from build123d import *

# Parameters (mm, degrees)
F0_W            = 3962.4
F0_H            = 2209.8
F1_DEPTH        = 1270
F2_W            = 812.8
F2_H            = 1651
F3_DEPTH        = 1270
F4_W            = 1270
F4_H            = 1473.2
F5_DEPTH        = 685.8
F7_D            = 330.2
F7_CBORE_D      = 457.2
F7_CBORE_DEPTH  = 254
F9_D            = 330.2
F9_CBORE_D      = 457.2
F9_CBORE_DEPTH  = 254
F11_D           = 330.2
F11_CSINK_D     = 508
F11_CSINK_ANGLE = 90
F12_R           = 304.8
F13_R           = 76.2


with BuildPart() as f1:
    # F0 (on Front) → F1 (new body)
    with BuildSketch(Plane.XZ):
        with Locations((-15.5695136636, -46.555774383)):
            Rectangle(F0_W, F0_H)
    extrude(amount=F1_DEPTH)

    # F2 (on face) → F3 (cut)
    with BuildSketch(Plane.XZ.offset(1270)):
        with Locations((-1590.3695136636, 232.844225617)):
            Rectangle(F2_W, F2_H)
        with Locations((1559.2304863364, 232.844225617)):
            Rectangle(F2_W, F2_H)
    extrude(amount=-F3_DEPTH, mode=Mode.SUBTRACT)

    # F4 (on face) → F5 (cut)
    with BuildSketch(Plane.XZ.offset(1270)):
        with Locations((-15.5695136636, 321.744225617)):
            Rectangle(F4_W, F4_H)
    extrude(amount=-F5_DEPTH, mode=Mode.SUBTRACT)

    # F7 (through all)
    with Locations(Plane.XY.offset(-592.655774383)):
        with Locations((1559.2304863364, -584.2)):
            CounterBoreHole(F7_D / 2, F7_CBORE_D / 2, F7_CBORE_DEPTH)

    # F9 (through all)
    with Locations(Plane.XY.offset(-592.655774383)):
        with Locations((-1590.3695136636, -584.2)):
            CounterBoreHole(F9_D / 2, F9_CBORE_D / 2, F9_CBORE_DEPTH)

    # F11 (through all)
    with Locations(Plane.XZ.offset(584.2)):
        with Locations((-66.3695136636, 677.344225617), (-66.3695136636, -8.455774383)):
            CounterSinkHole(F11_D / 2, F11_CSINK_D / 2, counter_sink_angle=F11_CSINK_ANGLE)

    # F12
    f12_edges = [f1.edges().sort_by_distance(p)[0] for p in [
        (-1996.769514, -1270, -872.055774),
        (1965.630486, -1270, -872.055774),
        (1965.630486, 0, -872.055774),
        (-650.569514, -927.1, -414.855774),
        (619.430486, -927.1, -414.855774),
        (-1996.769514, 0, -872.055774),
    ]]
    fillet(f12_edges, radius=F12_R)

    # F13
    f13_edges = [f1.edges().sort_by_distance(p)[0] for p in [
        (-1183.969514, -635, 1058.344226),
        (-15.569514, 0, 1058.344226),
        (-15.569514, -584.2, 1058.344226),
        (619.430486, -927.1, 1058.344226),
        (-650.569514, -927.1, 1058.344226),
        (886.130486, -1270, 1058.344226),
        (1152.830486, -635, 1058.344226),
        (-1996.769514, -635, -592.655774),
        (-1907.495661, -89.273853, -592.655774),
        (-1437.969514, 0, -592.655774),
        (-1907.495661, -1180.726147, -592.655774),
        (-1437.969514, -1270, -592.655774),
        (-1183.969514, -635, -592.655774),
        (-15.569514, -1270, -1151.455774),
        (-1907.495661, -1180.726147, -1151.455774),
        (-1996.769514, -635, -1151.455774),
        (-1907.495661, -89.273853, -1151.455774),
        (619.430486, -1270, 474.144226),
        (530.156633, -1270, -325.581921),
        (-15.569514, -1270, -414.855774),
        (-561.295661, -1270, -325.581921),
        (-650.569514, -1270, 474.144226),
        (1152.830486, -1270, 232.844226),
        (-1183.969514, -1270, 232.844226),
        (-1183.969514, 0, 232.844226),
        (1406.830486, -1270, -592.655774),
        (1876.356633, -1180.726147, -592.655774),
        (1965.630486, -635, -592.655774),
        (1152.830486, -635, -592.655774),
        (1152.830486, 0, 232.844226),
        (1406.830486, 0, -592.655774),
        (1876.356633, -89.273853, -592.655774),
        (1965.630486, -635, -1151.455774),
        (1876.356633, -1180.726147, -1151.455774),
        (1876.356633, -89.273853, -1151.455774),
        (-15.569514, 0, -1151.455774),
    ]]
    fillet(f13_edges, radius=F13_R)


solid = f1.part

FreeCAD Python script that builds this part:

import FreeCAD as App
import Part
import Sketcher
from FreeCAD import Vector
Q = App.Units.Quantity


def edges_at(feature, points):
    """Names of the edges that pass closest to the given points."""
    edges = feature.Shape.Edges
    near = lambda p: min(range(len(edges)), key=lambda i: edges[i].distToShape(Part.Vertex(*p))[0])
    return sorted({f"Edge{near(p) + 1}" for p in points})


def add_polygon(sketch, points):
    """Adds a closed chain of lines whose ends are joined by coincident constraints."""
    first, n = sketch.GeometryCount, len(points)
    for a, b in zip(points, points[1:] + points[:1]):
        sketch.addGeometry(Part.LineSegment(App.Vector(*a, 0), App.Vector(*b, 0)), False)
    for i in range(n):
        sketch.addConstraint(Sketcher.Constraint("Coincident", first + i, 2, first + (i + 1) % n, 1))

doc = App.newDocument("Part")
body = doc.addObject("PartDesign::Body", "Body")

sketch1 = body.newObject("Sketcher::SketchObject", "Sketch")
sketch1.AttachmentSupport = (doc.getObject("XZ_Plane"), [""])
sketch1.MapMode = "FlatFace"
add_polygon(sketch1, [(-1997, 1058), (-1997, -1151), (1966, -1151), (1966, 1058)])
sketch1.addConstraint(Sketcher.Constraint("Vertical", 0))
sketch1.addConstraint(Sketcher.Constraint("Horizontal", 1))
sketch1.addConstraint(Sketcher.Constraint("Vertical", 2))
sketch1.addConstraint(Sketcher.Constraint("Horizontal", 3))
sketch1.addConstraint(Sketcher.Constraint("DistanceX", 1, 1, 1, 2, Q("156 in")))
sketch1.addConstraint(Sketcher.Constraint("DistanceY", 0, 2, 0, 1, Q("87 in")))
sketch1.addConstraint(Sketcher.Constraint("DistanceX", 0, 2, -1, 1, Q("1996.769514 mm")))
sketch1.addConstraint(Sketcher.Constraint("DistanceY", 0, 2, -1, 1, Q("1151.455774 mm")))
pad1 = body.newObject("PartDesign::Pad", "Pad")
pad1.Profile = sketch1
pad1.Length = Q("50 in")

sketch2 = body.newObject("Sketcher::SketchObject", "Sketch001")
sketch2.AttachmentSupport = (doc.getObject("XZ_Plane"), [""])
sketch2.MapMode = "FlatFace"
sketch2.AttachmentOffset = App.Placement(Vector(0, 0, 50 * 25.4), App.Rotation())
add_polygon(sketch2, [(-1997, 1058), (-1997, -593), (-1184, -593), (-1184, 1058)])
add_polygon(sketch2, [(1153, 1058), (1153, -593), (1966, -593), (1966, 1058)])
sketch2.addConstraint(Sketcher.Constraint("Vertical", 0))
sketch2.addConstraint(Sketcher.Constraint("Horizontal", 1))
sketch2.addConstraint(Sketcher.Constraint("Vertical", 2))
sketch2.addConstraint(Sketcher.Constraint("Horizontal", 3))
sketch2.addConstraint(Sketcher.Constraint("Vertical", 4))
sketch2.addConstraint(Sketcher.Constraint("Horizontal", 5))
sketch2.addConstraint(Sketcher.Constraint("Vertical", 6))
sketch2.addConstraint(Sketcher.Constraint("Horizontal", 7))
sketch2.addConstraint(Sketcher.Constraint("Horizontal", 1, 2, 4, 2))
sketch2.addConstraint(Sketcher.Constraint("Horizontal", 3, 2, 6, 2))
sketch2.addConstraint(Sketcher.Constraint("Equal", 3, 5))
sketch2.addConstraint(Sketcher.Constraint("DistanceX", 1, 1, 1, 2, Q("32 in")))
sketch2.addConstraint(Sketcher.Constraint("DistanceY", 0, 2, 0, 1, Q("65 in")))
sketch2.addConstraint(Sketcher.Constraint("DistanceX", 1, 2, 4, 2, Q("92 in")))
sketch2.addConstraint(Sketcher.Constraint("DistanceX", 0, 2, -1, 1, Q("1996.769514 mm")))
sketch2.addConstraint(Sketcher.Constraint("DistanceY", 0, 2, -1, 1, Q("592.655774 mm")))
pocket1 = body.newObject("PartDesign::Pocket", "Pocket")
pocket1.Profile = sketch2
pocket1.Length = Q("50 in")

sketch3 = body.newObject("Sketcher::SketchObject", "Sketch002")
sketch3.AttachmentSupport = (doc.getObject("XZ_Plane"), [""])
sketch3.MapMode = "FlatFace"
sketch3.AttachmentOffset = App.Placement(Vector(0, 0, 50 * 25.4), App.Rotation())
add_polygon(sketch3, [(-651, 1058), (-651, -415), (619, -415), (619, 1058)])
sketch3.addConstraint(Sketcher.Constraint("Vertical", 0))
sketch3.addConstraint(Sketcher.Constraint("Horizontal", 1))
sketch3.addConstraint(Sketcher.Constraint("Vertical", 2))
sketch3.addConstraint(Sketcher.Constraint("Horizontal", 3))
sketch3.addConstraint(Sketcher.Constraint("DistanceX", 1, 1, 1, 2, Q("50 in")))
sketch3.addConstraint(Sketcher.Constraint("DistanceY", 0, 2, 0, 1, Q("58 in")))
sketch3.addConstraint(Sketcher.Constraint("DistanceX", 0, 2, -1, 1, Q("650.569514 mm")))
sketch3.addConstraint(Sketcher.Constraint("DistanceY", 0, 2, -1, 1, Q("414.855774 mm")))
pocket2 = body.newObject("PartDesign::Pocket", "Pocket001")
pocket2.Profile = sketch3
pocket2.Length = Q("27 in")

sketch4 = body.newObject("Sketcher::SketchObject", "Sketch003")
sketch4.AttachmentSupport = (doc.getObject("XY_Plane"), [""])
sketch4.MapMode = "FlatFace"
sketch4.AttachmentOffset = App.Placement(Vector(0, 0, -592.655774), App.Rotation())
sketch4.addGeometry(Part.Circle(Vector(1559, -584, 0), Vector(0, 0, 1), 165), False)
sketch4.addConstraint(Sketcher.Constraint("Diameter", 0, Q("13 in")))
sketch4.addConstraint(Sketcher.Constraint("DistanceY", 0, 3, -1, 1, Q("23 in")))
sketch4.addConstraint(Sketcher.Constraint("DistanceX", -1, 1, 0, 3, Q("1559.230486 mm")))
doc.recompute()
hole = body.newObject("PartDesign::Hole", "Hole")
hole.Profile = sketch4
hole.ThreadType = "None"
hole.Diameter = Q("13 in")
hole.DepthType = "ThroughAll"
hole.HoleCutType = "Counterbore"
hole.HoleCutDiameter = Q("18 in")
hole.HoleCutDepth = Q("10 in")

sketch5 = body.newObject("Sketcher::SketchObject", "Sketch004")
sketch5.AttachmentSupport = (doc.getObject("XY_Plane"), [""])
sketch5.MapMode = "FlatFace"
sketch5.AttachmentOffset = App.Placement(Vector(0, 0, -592.655774), App.Rotation())
sketch5.addGeometry(Part.Circle(Vector(-1590, -584, 0), Vector(0, 0, 1), 165), False)
sketch5.addConstraint(Sketcher.Constraint("Diameter", 0, Q("13 in")))
sketch5.addConstraint(Sketcher.Constraint("DistanceY", 0, 3, -1, 1, Q("23 in")))
sketch5.addConstraint(Sketcher.Constraint("DistanceX", 0, 3, -1, 1, Q("1590.369514 mm")))
doc.recompute()
hole2 = body.newObject("PartDesign::Hole", "Hole001")
hole2.Profile = sketch5
hole2.ThreadType = "None"
hole2.Diameter = Q("13 in")
hole2.DepthType = "ThroughAll"
hole2.HoleCutType = "Counterbore"
hole2.HoleCutDiameter = Q("18 in")
hole2.HoleCutDepth = Q("10 in")

sketch6 = body.newObject("Sketcher::SketchObject", "Sketch005")
sketch6.AttachmentSupport = (doc.getObject("XZ_Plane"), [""])
sketch6.MapMode = "FlatFace"
sketch6.AttachmentOffset = App.Placement(Vector(0, 0, 23 * 25.4), App.Rotation())
sketch6.addGeometry(Part.Circle(Vector(-66, 677, 0), Vector(0, 0, 1), 165), False)
sketch6.addGeometry(Part.Circle(Vector(-66, -8, 0), Vector(0, 0, 1), 165), False)
sketch6.addConstraint(Sketcher.Constraint("Equal", 0, 1))
sketch6.addConstraint(Sketcher.Constraint("Vertical", 0, 3, 1, 3))
sketch6.addConstraint(Sketcher.Constraint("Diameter", 0, Q("13 in")))
sketch6.addConstraint(Sketcher.Constraint("DistanceY", 1, 3, 0, 3, Q("27 in")))
sketch6.addConstraint(Sketcher.Constraint("DistanceX", 0, 3, -1, 1, Q("66.369514 mm")))
sketch6.addConstraint(Sketcher.Constraint("DistanceY", -1, 1, 0, 3, Q("677.344226 mm")))
doc.recompute()
hole3 = body.newObject("PartDesign::Hole", "Hole002")
hole3.Profile = sketch6
hole3.ThreadType = "None"
hole3.Diameter = Q("13 in")
hole3.DepthType = "ThroughAll"
hole3.HoleCutType = "Countersink"
hole3.HoleCutDiameter = Q("20 in")
hole3.HoleCutCountersinkAngle = 90
doc.recompute()

fillet = body.newObject("PartDesign::Fillet", "Fillet")
fillet.Base = (hole3, edges_at(hole3, [
    (-1996.77, -1270, -872.056),
    (1965.63, -1270, -872.056),
    (1965.63, 0, -872.056),
    (-650.57, -927.1, -414.856),
    (619.43, -927.1, -414.856),
    (-1996.77, 0, -872.056),
]))
fillet.Radius = Q("12 in")
doc.recompute()

fillet2 = body.newObject("PartDesign::Fillet", "Fillet001")
fillet2.Base = (fillet, edges_at(fillet, [
    (-1183.97, -635, 1058.344),
    (-15.57, 0, 1058.344),
    (-15.57, -584.2, 1058.344),
    (619.43, -927.1, 1058.344),
    (-650.57, -927.1, 1058.344),
    (886.13, -1270, 1058.344),
    (1152.83, -635, 1058.344),
    (-1996.77, -635, -592.656),
    (-1907.496, -89.274, -592.656),
    (-1437.97, 0, -592.656),
    (-1907.496, -1180.726, -592.656),
    (-1437.97, -1270, -592.656),
    (-1183.97, -635, -592.656),
    (-15.57, -1270, -1151.456),
    (-1907.496, -1180.726, -1151.456),
    (-1996.77, -635, -1151.456),
    (-1907.496, -89.274, -1151.456),
    (619.43, -1270, 474.144),
    (530.157, -1270, -325.582),
    (-15.57, -1270, -414.856),
    (-561.296, -1270, -325.582),
    (-650.57, -1270, 474.144),
    (1152.83, -1270, 232.844),
    (-1183.97, -1270, 232.844),
    (-1183.97, 0, 232.844),
    (1406.83, -1270, -592.656),
    (1876.357, -1180.726, -592.656),
    (1965.63, -635, -592.656),
    (1152.83, -635, -592.656),
    (1152.83, 0, 232.844),
    (1406.83, 0, -592.656),
    (1876.357, -89.274, -592.656),
    (1965.63, -635, -1151.456),
    (1876.357, -1180.726, -1151.456),
    (1876.357, -89.274, -1151.456),
    (-15.57, 0, -1151.456),
]))
fillet2.Radius = Q("3 in")

doc.recompute()
